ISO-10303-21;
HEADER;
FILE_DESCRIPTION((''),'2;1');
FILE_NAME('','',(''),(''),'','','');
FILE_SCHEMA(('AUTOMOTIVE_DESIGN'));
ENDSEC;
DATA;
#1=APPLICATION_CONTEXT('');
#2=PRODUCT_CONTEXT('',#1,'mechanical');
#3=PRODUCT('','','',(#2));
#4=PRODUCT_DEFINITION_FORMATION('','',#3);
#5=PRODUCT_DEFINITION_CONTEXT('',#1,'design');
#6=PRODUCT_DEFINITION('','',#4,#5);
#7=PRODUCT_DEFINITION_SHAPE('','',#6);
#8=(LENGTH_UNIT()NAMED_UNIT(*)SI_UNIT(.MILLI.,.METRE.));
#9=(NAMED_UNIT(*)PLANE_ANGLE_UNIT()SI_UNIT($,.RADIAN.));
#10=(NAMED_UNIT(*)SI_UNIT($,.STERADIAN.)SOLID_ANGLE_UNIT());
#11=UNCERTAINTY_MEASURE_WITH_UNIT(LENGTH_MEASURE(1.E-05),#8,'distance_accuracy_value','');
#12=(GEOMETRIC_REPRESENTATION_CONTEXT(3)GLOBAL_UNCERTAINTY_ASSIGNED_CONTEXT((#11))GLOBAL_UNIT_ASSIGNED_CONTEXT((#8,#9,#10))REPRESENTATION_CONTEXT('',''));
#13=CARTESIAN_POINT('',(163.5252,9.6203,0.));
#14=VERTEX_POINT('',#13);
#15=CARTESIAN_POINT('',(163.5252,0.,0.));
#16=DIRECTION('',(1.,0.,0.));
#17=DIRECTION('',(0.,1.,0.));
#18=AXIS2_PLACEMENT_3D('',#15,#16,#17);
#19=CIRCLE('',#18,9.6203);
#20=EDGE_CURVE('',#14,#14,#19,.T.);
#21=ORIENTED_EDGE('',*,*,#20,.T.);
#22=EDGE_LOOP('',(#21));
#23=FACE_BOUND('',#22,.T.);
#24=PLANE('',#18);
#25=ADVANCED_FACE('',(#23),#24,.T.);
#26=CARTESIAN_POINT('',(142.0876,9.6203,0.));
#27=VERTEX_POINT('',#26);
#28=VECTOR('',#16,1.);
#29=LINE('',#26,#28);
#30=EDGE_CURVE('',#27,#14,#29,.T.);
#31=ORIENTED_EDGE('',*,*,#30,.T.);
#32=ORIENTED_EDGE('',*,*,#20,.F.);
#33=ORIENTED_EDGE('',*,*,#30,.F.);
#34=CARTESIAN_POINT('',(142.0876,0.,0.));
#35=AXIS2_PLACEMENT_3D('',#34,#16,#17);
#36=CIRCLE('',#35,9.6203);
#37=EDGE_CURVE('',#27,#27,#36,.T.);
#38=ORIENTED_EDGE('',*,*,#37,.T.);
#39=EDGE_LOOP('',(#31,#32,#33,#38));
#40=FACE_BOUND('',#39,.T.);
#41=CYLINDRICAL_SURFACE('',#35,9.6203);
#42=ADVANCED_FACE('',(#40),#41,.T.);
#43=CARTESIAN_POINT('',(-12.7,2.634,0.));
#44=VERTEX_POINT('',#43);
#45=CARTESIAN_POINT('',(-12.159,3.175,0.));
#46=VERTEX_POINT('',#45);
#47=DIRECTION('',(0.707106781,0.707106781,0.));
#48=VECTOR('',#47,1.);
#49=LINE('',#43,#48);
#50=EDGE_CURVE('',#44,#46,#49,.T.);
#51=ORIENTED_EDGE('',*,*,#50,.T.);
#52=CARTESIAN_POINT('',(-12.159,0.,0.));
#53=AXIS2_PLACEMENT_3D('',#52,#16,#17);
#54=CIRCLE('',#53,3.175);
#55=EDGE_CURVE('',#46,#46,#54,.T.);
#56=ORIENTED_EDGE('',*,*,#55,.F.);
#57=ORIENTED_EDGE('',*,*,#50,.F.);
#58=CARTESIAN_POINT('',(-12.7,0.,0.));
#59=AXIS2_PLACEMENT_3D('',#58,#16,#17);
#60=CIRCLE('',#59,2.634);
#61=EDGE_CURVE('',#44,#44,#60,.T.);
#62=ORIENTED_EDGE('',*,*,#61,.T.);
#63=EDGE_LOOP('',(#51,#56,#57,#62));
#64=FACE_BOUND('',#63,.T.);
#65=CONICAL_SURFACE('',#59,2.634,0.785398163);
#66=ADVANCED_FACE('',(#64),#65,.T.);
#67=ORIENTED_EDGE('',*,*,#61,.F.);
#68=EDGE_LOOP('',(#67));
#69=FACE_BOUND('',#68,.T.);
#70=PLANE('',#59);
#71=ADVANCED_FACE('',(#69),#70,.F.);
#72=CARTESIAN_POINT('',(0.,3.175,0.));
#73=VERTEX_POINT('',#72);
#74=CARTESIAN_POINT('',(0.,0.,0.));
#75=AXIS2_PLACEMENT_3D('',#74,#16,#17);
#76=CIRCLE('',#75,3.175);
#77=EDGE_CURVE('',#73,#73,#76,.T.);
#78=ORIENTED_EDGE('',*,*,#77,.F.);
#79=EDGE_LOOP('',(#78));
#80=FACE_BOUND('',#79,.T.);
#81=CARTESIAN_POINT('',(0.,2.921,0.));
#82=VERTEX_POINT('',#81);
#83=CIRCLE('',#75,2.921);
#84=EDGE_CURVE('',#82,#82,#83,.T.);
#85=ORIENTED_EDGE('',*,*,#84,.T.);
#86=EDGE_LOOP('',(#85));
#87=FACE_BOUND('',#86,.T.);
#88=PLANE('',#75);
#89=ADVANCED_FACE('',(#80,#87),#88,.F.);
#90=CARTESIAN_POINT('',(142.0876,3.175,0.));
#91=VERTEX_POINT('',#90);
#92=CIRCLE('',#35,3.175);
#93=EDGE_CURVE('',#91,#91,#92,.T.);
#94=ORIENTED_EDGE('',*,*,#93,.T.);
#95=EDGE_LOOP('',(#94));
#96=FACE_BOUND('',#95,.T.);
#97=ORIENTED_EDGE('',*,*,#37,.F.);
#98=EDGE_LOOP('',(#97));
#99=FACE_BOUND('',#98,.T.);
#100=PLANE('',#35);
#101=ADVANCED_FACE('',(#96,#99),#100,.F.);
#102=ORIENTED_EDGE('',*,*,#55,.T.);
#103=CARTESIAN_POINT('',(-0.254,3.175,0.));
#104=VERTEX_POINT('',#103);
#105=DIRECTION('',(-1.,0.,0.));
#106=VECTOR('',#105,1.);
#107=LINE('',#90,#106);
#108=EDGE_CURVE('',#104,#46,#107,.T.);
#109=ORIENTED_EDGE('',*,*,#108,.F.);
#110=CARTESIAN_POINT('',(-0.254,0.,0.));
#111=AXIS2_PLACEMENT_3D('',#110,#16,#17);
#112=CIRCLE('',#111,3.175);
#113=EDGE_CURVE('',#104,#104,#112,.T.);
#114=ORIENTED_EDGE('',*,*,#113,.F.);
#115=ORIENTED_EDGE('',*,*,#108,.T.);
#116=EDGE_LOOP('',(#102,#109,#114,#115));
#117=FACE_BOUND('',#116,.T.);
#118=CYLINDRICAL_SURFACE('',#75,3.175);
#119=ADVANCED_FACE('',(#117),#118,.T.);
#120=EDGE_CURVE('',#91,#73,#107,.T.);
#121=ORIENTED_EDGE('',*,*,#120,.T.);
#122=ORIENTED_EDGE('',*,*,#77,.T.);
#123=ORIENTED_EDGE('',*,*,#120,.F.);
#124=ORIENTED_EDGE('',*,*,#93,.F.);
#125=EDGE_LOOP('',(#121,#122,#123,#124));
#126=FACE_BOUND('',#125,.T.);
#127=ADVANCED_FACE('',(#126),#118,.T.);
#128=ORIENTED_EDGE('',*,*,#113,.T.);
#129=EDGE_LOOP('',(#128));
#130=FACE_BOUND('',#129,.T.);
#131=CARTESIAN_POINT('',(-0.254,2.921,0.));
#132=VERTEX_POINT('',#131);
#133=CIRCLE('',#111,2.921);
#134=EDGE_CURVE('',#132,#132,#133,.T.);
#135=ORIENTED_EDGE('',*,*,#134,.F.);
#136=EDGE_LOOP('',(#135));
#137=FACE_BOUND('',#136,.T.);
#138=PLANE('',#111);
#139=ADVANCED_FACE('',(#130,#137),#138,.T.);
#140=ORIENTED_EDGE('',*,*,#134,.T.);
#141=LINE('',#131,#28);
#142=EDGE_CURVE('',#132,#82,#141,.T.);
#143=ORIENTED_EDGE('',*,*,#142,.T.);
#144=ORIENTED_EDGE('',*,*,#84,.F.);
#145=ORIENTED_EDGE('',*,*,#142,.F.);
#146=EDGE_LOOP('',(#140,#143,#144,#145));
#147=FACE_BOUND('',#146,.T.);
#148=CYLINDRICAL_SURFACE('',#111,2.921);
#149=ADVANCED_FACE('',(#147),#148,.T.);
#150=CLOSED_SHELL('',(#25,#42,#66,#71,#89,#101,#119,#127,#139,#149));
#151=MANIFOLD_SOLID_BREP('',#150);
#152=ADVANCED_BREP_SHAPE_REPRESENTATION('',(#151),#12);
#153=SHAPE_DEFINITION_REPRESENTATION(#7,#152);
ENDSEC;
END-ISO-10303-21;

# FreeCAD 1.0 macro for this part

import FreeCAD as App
import Part
import Sketcher

V = App.Vector
Q = App.Units.Quantity

doc = App.newDocument("Part")
body = doc.addObject("PartDesign::Body", "Body")

sketch1 = body.newObject("Sketcher::SketchObject", "Sketch")
sketch1.AttachmentSupport = (doc.getObject("XY_Plane"), [""])
sketch1.MapMode = "FlatFace"
sketch1.addGeometry(Part.LineSegment(V(0, 0, 0), V(163.5, 0, 0)), False)
sketch1.addGeometry(Part.LineSegment(V(163.5, 0, 0), V(163.5, 9.6, 0)), False)
sketch1.addGeometry(Part.LineSegment(V(163.5, 9.6, 0), V(142.1, 9.6, 0)), False)
sketch1.addGeometry(Part.LineSegment(V(142.1, 9.6, 0), V(142.1, 3.2, 0)), False)
sketch1.addGeometry(Part.LineSegment(V(142.1, 3.2, 0), V(0, 3.2, 0)), False)
sketch1.addGeometry(Part.LineSegment(V(0, 3.2, 0), V(0, 0, 0)), False)
sketch1.addConstraint(Sketcher.Constraint("Coincident", 0, 2, 1, 1))
sketch1.addConstraint(Sketcher.Constraint("Coincident", 1, 2, 2, 1))
sketch1.addConstraint(Sketcher.Constraint("Coincident", 2, 2, 3, 1))
sketch1.addConstraint(Sketcher.Constraint("Coincident", 3, 2, 4, 1))
sketch1.addConstraint(Sketcher.Constraint("Coincident", 4, 2, 5, 1))
sketch1.addConstraint(Sketcher.Constraint("Coincident", 5, 2, 0, 1))
sketch1.addConstraint(Sketcher.Constraint("Horizontal", 0))
sketch1.addConstraint(Sketcher.Constraint("Vertical", 1))
sketch1.addConstraint(Sketcher.Constraint("Horizontal", 2))
sketch1.addConstraint(Sketcher.Constraint("Vertical", 3))
sketch1.addConstraint(Sketcher.Constraint("Horizontal", 4))
sketch1.addConstraint(Sketcher.Constraint("Vertical", 5))
sketch1.addConstraint(Sketcher.Constraint("Coincident", 5, 2, -1, 1))
sketch1.addConstraint(Sketcher.Constraint("DistanceX", 0, 1, 0, 2, Q("6.438 in")))
sketch1.addConstraint(Sketcher.Constraint("DistanceX", 2, 2, 2, 1, Q("0.844 in")))
sketch1.addConstraint(Sketcher.Constraint("DistanceY", 5, 2, 5, 1, Q("0.125 in")))
sketch1.addConstraint(Sketcher.Constraint("DistanceY", 1, 1, 1, 2, 9.6203))
revolution = body.newObject("PartDesign::Revolution", "Revolution")
revolution.Profile = sketch1
revolution.ReferenceAxis = (sketch1, ["H_Axis"])
revolution.Angle = 360

sketch2 = body.newObject("Sketcher::SketchObject", "Sketch001")
sketch2.AttachmentSupport = (doc.getObject("XY_Plane"), [""])
sketch2.MapMode = "FlatFace"
sketch2.addGeometry(Part.LineSegment(V(-12.7, 0, 0), V(0, 0, 0)), False)
sketch2.addGeometry(Part.LineSegment(V(0, 0, 0), V(0, 3.2, 0)), False)
sketch2.addGeometry(Part.LineSegment(V(0, 3.2, 0), V(-12.2, 3.2, 0)), False)
sketch2.addGeometry(Part.LineSegment(V(-12.2, 3.2, 0), V(-12.7, 2.6, 0)), False)
sketch2.addGeometry(Part.LineSegment(V(-12.7, 2.6, 0), V(-12.7, 0, 0)), False)
sketch2.addConstraint(Sketcher.Constraint("Coincident", 0, 2, 1, 1))
sketch2.addConstraint(Sketcher.Constraint("Coincident", 1, 2, 2, 1))
sketch2.addConstraint(Sketcher.Constraint("Coincident", 2, 2, 3, 1))
sketch2.addConstraint(Sketcher.Constraint("Coincident", 3, 2, 4, 1))
sketch2.addConstraint(Sketcher.Constraint("Coincident", 4, 2, 0, 1))
sketch2.addConstraint(Sketcher.Constraint("Horizontal", 0))
sketch2.addConstraint(Sketcher.Constraint("Vertical", 1))
sketch2.addConstraint(Sketcher.Constraint("Horizontal", 2))
sketch2.addConstraint(Sketcher.Constraint("Vertical", 4))
sketch2.addConstraint(Sketcher.Constraint("Coincident", 0, 2, -1, 1))
sketch2.addConstraint(Sketcher.Constraint("DistanceX", 0, 1, 0, 2, Q("0.5 in")))
sketch2.addConstraint(Sketcher.Constraint("Angle", 3, Q("-135 deg")))
sketch2.addConstraint(Sketcher.Constraint("DistanceY", 1, 1, 1, 2, Q("0.125 in")))
sketch2.addConstraint(Sketcher.Constraint("DistanceX", 2, 2, 2, 1, Q("0.4787 in")))
revolution2 = body.newObject("PartDesign::Revolution", "Revolution001")
revolution2.Profile = sketch2
revolution2.ReferenceAxis = (sketch2, ["H_Axis"])
revolution2.Angle = 360

sketch3 = body.newObject("Sketcher::SketchObject", "Sketch002")
sketch3.AttachmentSupport = (doc.getObject("XY_Plane"), [""])
sketch3.MapMode = "FlatFace"
sketch3.addGeometry(Part.LineSegment(V(0, 3.43, 0), V(-0.25, 3.43, 0)), False)
sketch3.addGeometry(Part.LineSegment(V(-0.25, 3.43, 0), V(-0.25, 2.92, 0)), False)
sketch3.addGeometry(Part.LineSegment(V(-0.25, 2.92, 0), V(0, 2.92, 0)), False)
sketch3.addGeometry(Part.LineSegment(V(0, 2.92, 0), V(0, 3.43, 0)), False)
sketch3.addConstraint(Sketcher.Constraint("Coincident", 0, 2, 1, 1))
sketch3.addConstraint(Sketcher.Constraint("Coincident", 1, 2, 2, 1))
sketch3.addConstraint(Sketcher.Constraint("Coincident", 2, 2, 3, 1))
sketch3.addConstraint(Sketcher.Constraint("Coincident", 3, 2, 0, 1))
sketch3.addConstraint(Sketcher.Constraint("Horizontal", 0))
sketch3.addConstraint(Sketcher.Constraint("Vertical", 1))
sketch3.addConstraint(Sketcher.Constraint("Horizontal", 2))
sketch3.addConstraint(Sketcher.Constraint("Vertical", 3))
sketch3.addConstraint(Sketcher.Constraint("PointOnObject", 2, 2, -2))
sketch3.addConstraint(Sketcher.Constraint("DistanceX", 0, 2, 0, 1, Q("0.01 in")))
sketch3.addConstraint(Sketcher.Constraint("DistanceY", 1, 2, 1, 1, Q("0.02 in")))
sketch3.addConstraint(Sketcher.Constraint("DistanceY", -1, 1, 0, 2, Q("0.135 in")))
groove = body.newObject("PartDesign::Groove", "Groove")
groove.Profile = sketch3
groove.ReferenceAxis = (sketch3, ["H_Axis"])
groove.Angle = 360

doc.recompute()
